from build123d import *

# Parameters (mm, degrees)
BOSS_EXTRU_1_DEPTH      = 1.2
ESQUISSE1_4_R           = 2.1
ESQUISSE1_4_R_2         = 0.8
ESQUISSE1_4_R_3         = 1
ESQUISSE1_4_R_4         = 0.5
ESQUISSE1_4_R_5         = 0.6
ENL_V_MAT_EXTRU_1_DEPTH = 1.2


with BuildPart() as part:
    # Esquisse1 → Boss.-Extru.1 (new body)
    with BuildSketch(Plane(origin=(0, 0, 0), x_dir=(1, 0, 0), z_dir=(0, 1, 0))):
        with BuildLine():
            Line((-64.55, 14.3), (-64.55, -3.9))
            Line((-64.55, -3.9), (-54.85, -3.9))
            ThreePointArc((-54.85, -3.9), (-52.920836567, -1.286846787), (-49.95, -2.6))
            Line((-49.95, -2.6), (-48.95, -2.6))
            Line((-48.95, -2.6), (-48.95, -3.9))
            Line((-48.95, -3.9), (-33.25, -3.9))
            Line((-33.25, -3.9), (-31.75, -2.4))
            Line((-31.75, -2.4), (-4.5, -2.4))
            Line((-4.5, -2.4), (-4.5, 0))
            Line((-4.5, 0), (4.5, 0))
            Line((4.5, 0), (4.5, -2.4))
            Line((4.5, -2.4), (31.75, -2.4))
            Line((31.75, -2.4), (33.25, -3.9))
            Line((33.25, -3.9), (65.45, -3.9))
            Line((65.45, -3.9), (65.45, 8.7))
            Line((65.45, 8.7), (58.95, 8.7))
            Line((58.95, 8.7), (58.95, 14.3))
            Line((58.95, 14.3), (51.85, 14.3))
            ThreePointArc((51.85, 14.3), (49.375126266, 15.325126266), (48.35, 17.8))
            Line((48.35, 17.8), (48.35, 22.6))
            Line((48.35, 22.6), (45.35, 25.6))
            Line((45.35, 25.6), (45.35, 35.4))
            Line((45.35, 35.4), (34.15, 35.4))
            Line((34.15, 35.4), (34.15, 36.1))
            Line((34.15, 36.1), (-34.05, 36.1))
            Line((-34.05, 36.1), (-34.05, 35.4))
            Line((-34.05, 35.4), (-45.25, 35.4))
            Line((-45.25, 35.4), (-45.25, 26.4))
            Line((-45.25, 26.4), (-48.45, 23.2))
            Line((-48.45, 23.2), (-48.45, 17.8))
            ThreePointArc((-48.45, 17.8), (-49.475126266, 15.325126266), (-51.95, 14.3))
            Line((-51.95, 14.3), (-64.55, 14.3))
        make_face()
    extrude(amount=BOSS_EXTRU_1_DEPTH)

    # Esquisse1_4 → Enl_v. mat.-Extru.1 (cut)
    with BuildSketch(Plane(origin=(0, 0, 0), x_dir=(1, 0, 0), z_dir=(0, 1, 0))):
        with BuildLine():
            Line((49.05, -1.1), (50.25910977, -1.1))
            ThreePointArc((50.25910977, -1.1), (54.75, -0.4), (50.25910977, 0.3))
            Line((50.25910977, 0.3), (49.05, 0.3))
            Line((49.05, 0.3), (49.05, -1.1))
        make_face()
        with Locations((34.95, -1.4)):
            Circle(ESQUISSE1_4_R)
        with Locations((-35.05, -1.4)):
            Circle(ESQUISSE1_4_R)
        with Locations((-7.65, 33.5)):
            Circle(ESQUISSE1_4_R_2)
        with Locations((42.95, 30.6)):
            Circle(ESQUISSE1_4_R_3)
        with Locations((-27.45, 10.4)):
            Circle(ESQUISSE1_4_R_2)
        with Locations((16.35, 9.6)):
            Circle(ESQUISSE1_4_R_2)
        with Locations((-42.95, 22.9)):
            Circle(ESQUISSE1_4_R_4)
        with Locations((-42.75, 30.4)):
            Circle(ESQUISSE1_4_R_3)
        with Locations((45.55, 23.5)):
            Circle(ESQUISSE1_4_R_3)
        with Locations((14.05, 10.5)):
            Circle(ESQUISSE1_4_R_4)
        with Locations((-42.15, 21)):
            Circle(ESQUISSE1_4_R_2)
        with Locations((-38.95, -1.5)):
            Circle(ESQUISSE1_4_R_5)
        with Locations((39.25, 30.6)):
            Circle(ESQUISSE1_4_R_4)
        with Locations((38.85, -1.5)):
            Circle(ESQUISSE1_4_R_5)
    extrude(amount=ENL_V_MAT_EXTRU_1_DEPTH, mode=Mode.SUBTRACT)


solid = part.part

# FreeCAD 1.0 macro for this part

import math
import FreeCAD as App
import Part
import Sketcher
Q = App.Units.Quantity

doc = App.newDocument("Part")
body = doc.addObject("PartDesign::Body", "Body")

sketch1 = body.newObject("Sketcher::SketchObject", "Sketch")
sketch1.AttachmentSupport = (doc.getObject("XZ_Plane"), [""])
sketch1.MapMode = "FlatFace"
sketch1.addGeometry(Part.LineSegment(App.Vector(-64.5, -14.3, 0), App.Vector(-64.5, 3.9, 0)), False)
sketch1.addGeometry(Part.LineSegment(App.Vector(-64.5, 3.9, 0), App.Vector(-54.9, 3.9, 0)), False)
sketch1.addGeometry(Part.ArcOfCircle(Part.Circle(App.Vector(-52.3, 3.8, 0), App.Vector(0, 0, 1), 2.6), math.radians(178), math.radians(333)), False)
sketch1.addGeometry(Part.LineSegment(App.Vector(-50, 2.6, 0), App.Vector(-49, 2.6, 0)), False)
sketch1.addGeometry(Part.LineSegment(App.Vector(-49, 2.6, 0), App.Vector(-49, 3.9, 0)), False)
sketch1.addGeometry(Part.LineSegment(App.Vector(-49, 3.9, 0), App.Vector(-33.2, 3.9, 0)), False)
sketch1.addGeometry(Part.LineSegment(App.Vector(-33.2, 3.9, 0), App.Vector(-31.8, 2.4, 0)), False)
sketch1.addGeometry(Part.LineSegment(App.Vector(-31.8, 2.4, 0), App.Vector(-4.5, 2.4, 0)), False)
sketch1.addGeometry(Part.LineSegment(App.Vector(-4.5, 2.4, 0), App.Vector(-4.5, 0, 0)), False)
sketch1.addGeometry(Part.LineSegment(App.Vector(-4.5, 0, 0), App.Vector(4.5, 0, 0)), False)
sketch1.addGeometry(Part.LineSegment(App.Vector(4.5, 0, 0), App.Vector(4.5, 2.4, 0)), False)
sketch1.addGeometry(Part.LineSegment(App.Vector(4.5, 2.4, 0), App.Vector(31.8, 2.4, 0)), False)
sketch1.addGeometry(Part.LineSegment(App.Vector(31.8, 2.4, 0), App.Vector(33.2, 3.9, 0)), False)
sketch1.addGeometry(Part.LineSegment(App.Vector(33.2, 3.9, 0), App.Vector(65.5, 3.9, 0)), False)
sketch1.addGeometry(Part.LineSegment(App.Vector(65.5, 3.9, 0), App.Vector(65.5, -8.7, 0)), False)
sketch1.addGeometry(Part.LineSegment(App.Vector(65.5, -8.7, 0), App.Vector(59, -8.7, 0)), False)
sketch1.addGeometry(Part.LineSegment(App.Vector(59, -8.7, 0), App.Vector(59, -14.3, 0)), False)
sketch1.addGeometry(Part.LineSegment(App.Vector(59, -14.3, 0), App.Vector(51.9, -14.3, 0)), False)
sketch1.addGeometry(Part.ArcOfCircle(Part.Circle(App.Vector(51.9, -17.8, 0), App.Vector(0, 0, 1), 3.5), math.radians(90), math.radians(180)), False)
sketch1.addGeometry(Part.LineSegment(App.Vector(48.4, -17.8, 0), App.Vector(48.4, -22.6, 0)), False)
sketch1.addGeometry(Part.LineSegment(App.Vector(48.4, -22.6, 0), App.Vector(45.4, -25.6, 0)), False)
sketch1.addGeometry(Part.LineSegment(App.Vector(45.4, -25.6, 0), App.Vector(45.4, -35.4, 0)), False)
sketch1.addGeometry(Part.LineSegment(App.Vector(45.4, -35.4, 0), App.Vector(34.1, -35.4, 0)), False)
sketch1.addGeometry(Part.LineSegment(App.Vector(34.1, -35.4, 0), App.Vector(34.1, -36.1, 0)), False)
sketch1.addGeometry(Part.LineSegment(App.Vector(34.1, -36.1, 0), App.Vector(-34, -36.1, 0)), False)
sketch1.addGeometry(Part.LineSegment(App.Vector(-34, -36.1, 0), App.Vector(-34, -35.4, 0)), False)
sketch1.addGeometry(Part.LineSegment(App.Vector(-34, -35.4, 0), App.Vector(-45.2, -35.4, 0)), False)
sketch1.addGeometry(Part.LineSegment(App.Vector(-45.2, -35.4, 0), App.Vector(-45.2, -26.4, 0)), False)
sketch1.addGeometry(Part.LineSegment(App.Vector(-45.2, -26.4, 0), App.Vector(-48.5, -23.2, 0)), False)
sketch1.addGeometry(Part.LineSegment(App.Vector(-48.5, -23.2, 0), App.Vector(-48.5, -17.8, 0)), False)
sketch1.addGeometry(Part.ArcOfCircle(Part.Circle(App.Vector(-52, -17.8, 0), App.Vector(0, 0, 1), 3.5), math.radians(0), math.radians(90)), False)
sketch1.addGeometry(Part.LineSegment(App.Vector(-52, -14.3, 0), App.Vector(-64.5, -14.3, 0)), False)
sketch1.addConstraint(Sketcher.Constraint("Coincident", 0, 2, 1, 1))
sketch1.addConstraint(Sketcher.Constraint("Coincident", 1, 2, 2, 1))
sketch1.addConstraint(Sketcher.Constraint("Coincident", 2, 2, 3, 1))
sketch1.addConstraint(Sketcher.Constraint("Coincident", 3, 2, 4, 1))
sketch1.addConstraint(Sketcher.Constraint("Coincident", 4, 2, 5, 1))
sketch1.addConstraint(Sketcher.Constraint("Coincident", 5, 2, 6, 1))
sketch1.addConstraint(Sketcher.Constraint("Coincident", 6, 2, 7, 1))
sketch1.addConstraint(Sketcher.Constraint("Coincident", 7, 2, 8, 1))
sketch1.addConstraint(Sketcher.Constraint("Coincident", 8, 2, 9, 1))
sketch1.addConstraint(Sketcher.Constraint("Coincident", 9, 2, 10, 1))
sketch1.addConstraint(Sketcher.Constraint("Coincident", 10, 2, 11, 1))
sketch1.addConstraint(Sketcher.Constraint("Coincident", 11, 2, 12, 1))
sketch1.addConstraint(Sketcher.Constraint("Coincident", 12, 2, 13, 1))
sketch1.addConstraint(Sketcher.Constraint("Coincident", 13, 2, 14, 1))
sketch1.addConstraint(Sketcher.Constraint("Coincident", 14, 2, 15, 1))
sketch1.addConstraint(Sketcher.Constraint("Coincident", 15, 2, 16, 1))
sketch1.addConstraint(Sketcher.Constraint("Coincident", 16, 2, 17, 1))
sketch1.addConstraint(Sketcher.Constraint("Tangent", 17, 2, 18, 1))
sketch1.addConstraint(Sketcher.Constraint("Tangent", 18, 2, 19, 1))
sketch1.addConstraint(Sketcher.Constraint("Coincident", 19, 2, 20, 1))
sketch1.addConstraint(Sketcher.Constraint("Coincident", 20, 2, 21, 1))
sketch1.addConstraint(Sketcher.Constraint("Coincident", 21, 2, 22, 1))
sketch1.addConstraint(Sketcher.Constraint("Coincident", 22, 2, 23, 1))
sketch1.addConstraint(Sketcher.Constraint("Coincident", 23, 2, 24, 1))
sketch1.addConstraint(Sketcher.Constraint("Coincident", 24, 2, 25, 1))
sketch1.addConstraint(Sketcher.Constraint("Coincident", 25, 2, 26, 1))
sketch1.addConstraint(Sketcher.Constraint("Coincident", 26, 2, 27, 1))
sketch1.addConstraint(Sketcher.Constraint("Coincident", 27, 2, 28, 1))
sketch1.addConstraint(Sketcher.Constraint("Coincident", 28, 2, 29, 1))
sketch1.addConstraint(Sketcher.Constraint("Tangent", 29, 2, 30, 1))
sketch1.addConstraint(Sketcher.Constraint("Tangent", 30, 2, 31, 1))
sketch1.addConstraint(Sketcher.Constraint("Coincident", 31, 2, 0, 1))
sketch1.addConstraint(Sketcher.Constraint("Vertical", 0))
sketch1.addConstraint(Sketcher.Constraint("Horizontal", 1))
sketch1.addConstraint(Sketcher.Constraint("Horizontal", 3))
sketch1.addConstraint(Sketcher.Constraint("Vertical", 4))
sketch1.addConstraint(Sketcher.Constraint("Horizontal", 5))
sketch1.addConstraint(Sketcher.Constraint("Horizontal", 7))
sketch1.addConstraint(Sketcher.Constraint("Vertical", 8))
sketch1.addConstraint(Sketcher.Constraint("Horizontal", 9))
sketch1.addConstraint(Sketcher.Constraint("Vertical", 10))
sketch1.addConstraint(Sketcher.Constraint("Horizontal", 11))
sketch1.addConstraint(Sketcher.Constraint("Horizontal", 13))
sketch1.addConstraint(Sketcher.Constraint("Vertical", 14))
sketch1.addConstraint(Sketcher.Constraint("Horizontal", 15))
sketch1.addConstraint(Sketcher.Constraint("Vertical", 16))
sketch1.addConstraint(Sketcher.Constraint("Horizontal", 17))
sketch1.addConstraint(Sketcher.Constraint("Vertical", 19))
sketch1.addConstraint(Sketcher.Constraint("Vertical", 21))
sketch1.addConstraint(Sketcher.Constraint("Horizontal", 22))
sketch1.addConstraint(Sketcher.Constraint("Vertical", 23))
sketch1.addConstraint(Sketcher.Constraint("Horizontal", 24))
sketch1.addConstraint(Sketcher.Constraint("Vertical", 25))
sketch1.addConstraint(Sketcher.Constraint("Horizontal", 26))
sketch1.addConstraint(Sketcher.Constraint("Vertical", 27))
sketch1.addConstraint(Sketcher.Constraint("Vertical", 29))
sketch1.addConstraint(Sketcher.Constraint("Horizontal", 31))
sketch1.addConstraint(Sketcher.Constraint("Equal", 18, 30))
sketch1.addConstraint(Sketcher.Constraint("Symmetric", 8, 2, 9, 2, -1, 1))
sketch1.addConstraint(Sketcher.Constraint("Symmetric", 6, 2, 11, 2, -2))
sketch1.addConstraint(Sketcher.Constraint("Symmetric", 5, 2, 12, 2, -2))
sketch1.addConstraint(Sketcher.Constraint("Perpendicular", 6, 12))
sketch1.addConstraint(Sketcher.Constraint("Parallel", 12, 20))
sketch1.addConstraint(Sketcher.Constraint("Perpendicular", 20, 28))
sketch1.addConstraint(Sketcher.Constraint("Horizontal", 18, 3, 30, 3))
sketch1.addConstraint(Sketcher.Constraint("Horizontal", 1, 2, 4, 2))
sketch1.addConstraint(Sketcher.Constraint("Horizontal", 22, 2, 25, 2))
sketch1.addConstraint(Sketcher.Constraint("Equal", 22, 26))
sketch1.addConstraint(Sketcher.Constraint("Equal", 31, 14))
sketch1.addConstraint(Sketcher.Constraint("Equal", 9, 27))
sketch1.addConstraint(Sketcher.Constraint("Radius", 18, Q("3.5 mm")))
sketch1.addConstraint(Sketcher.Constraint("DistanceX", 3, 1, 3, 2, Q("1 mm")))
sketch1.addConstraint(Sketcher.Constraint("DistanceX", 9, 1, 9, 2, Q("9 mm")))
sketch1.addConstraint(Sketcher.Constraint("DistanceX", 1, 1, 1, 2, Q("9.7 mm")))
sketch1.addConstraint(Sketcher.Constraint("DistanceX", 5, 1, 5, 2, Q("15.7 mm")))
sketch1.addConstraint(Sketcher.Constraint("DistanceX", 13, 1, 13, 2, Q("32.2 mm")))
sketch1.addConstraint(Sketcher.Constraint("DistanceX", 15, 2, 15, 1, Q("6.5 mm")))
sketch1.addConstraint(Sketcher.Constraint("DistanceX", 17, 2, 17, 1, Q("7.1 mm")))
sketch1.addConstraint(Sketcher.Constraint("DistanceX", 22, 2, 22, 1, Q("11.2 mm")))
sketch1.addConstraint(Sketcher.Constraint("DistanceX", 24, 2, 24, 1, Q("68.2 mm")))
sketch1.addConstraint(Sketcher.Constraint("DistanceX", 31, 2, 31, 1, Q("12.6 mm")))
sketch1.addConstraint(Sketcher.Constraint("DistanceY", 0, 1, 0, 2, Q("18.2 mm")))
sketch1.addConstraint(Sketcher.Constraint("DistanceY", 4, 1, 4, 2, Q("1.3 mm")))
sketch1.addConstraint(Sketcher.Constraint("DistanceY", 8, 2, 8, 1, Q("2.4 mm")))
sketch1.addConstraint(Sketcher.Constraint("DistanceY", 19, 2, 19, 1, Q("4.8 mm")))
sketch1.addConstraint(Sketcher.Constraint("DistanceY", 21, 2, 21, 1, Q("9.8 mm")))
sketch1.addConstraint(Sketcher.Constraint("DistanceY", 23, 2, 23, 1, Q("0.7 mm")))
sketch1.addConstraint(Sketcher.Constraint("DistanceY", 29, 1, 29, 2, Q("5.4 mm")))
sketch1.addConstraint(Sketcher.Constraint("DistanceX", 30, 3, 2, 2, Q("2 mm")))
sketch1.addConstraint(Sketcher.Constraint("DistanceX", 20, 2, 19, 2, Q("3 mm")))
sketch1.addConstraint(Sketcher.Constraint("DistanceX", 7, 1, 7, 2, Q("27.25 mm")))
sketch1.addConstraint(Sketcher.Constraint("Radius", 2, Q("2.597214 mm")))
pad1 = body.newObject("PartDesign::Pad", "Pad")
pad1.Profile = sketch1
pad1.Length = 1.2
pad1.Reversed = True

sketch2 = body.newObject("Sketcher::SketchObject", "Sketch001")
sketch2.AttachmentSupport = (doc.getObject("XZ_Plane"), [""])
sketch2.MapMode = "FlatFace"
sketch2.addGeometry(Part.LineSegment(App.Vector(49, 1.1, 0), App.Vector(50.3, 1.1, 0)), False)
sketch2.addGeometry(Part.ArcOfCircle(Part.Circle(App.Vector(52.5, 0.4, 0), App.Vector(0, 0, 1), 2.3), math.radians(-162), math.radians(162)), False)
sketch2.addGeometry(Part.LineSegment(App.Vector(50.3, -0.3, 0), App.Vector(49, -0.3, 0)), False)
sketch2.addGeometry(Part.LineSegment(App.Vector(49, -0.3, 0), App.Vector(49, 1.1, 0)), False)
sketch2.addGeometry(Part.Circle(App.Vector(35, 1.4, 0), App.Vector(0, 0, 1), 2.1), False)
sketch2.addGeometry(Part.Circle(App.Vector(-35, 1.4, 0), App.Vector(0, 0, 1), 2.1), False)
sketch2.addGeometry(Part.Circle(App.Vector(-7.7, -33.5, 0), App.Vector(0, 0, 1), 0.8), False)
sketch2.addGeometry(Part.Circle(App.Vector(43, -30.6, 0), App.Vector(0, 0, 1), 1), False)
sketch2.addGeometry(Part.Circle(App.Vector(-27.4, -10.4, 0), App.Vector(0, 0, 1), 0.8), False)
sketch2.addGeometry(Part.Circle(App.Vector(16.4, -9.6, 0), App.Vector(0, 0, 1), 0.8), False)
sketch2.addGeometry(Part.Circle(App.Vector(-43, -22.9, 0), App.Vector(0, 0, 1), 0.5), False)
sketch2.addGeometry(Part.Circle(App.Vector(-42.8, -30.4, 0), App.Vector(0, 0, 1), 1), False)
sketch2.addGeometry(Part.Circle(App.Vector(45.5, -23.5, 0), App.Vector(0, 0, 1), 1), False)
sketch2.addGeometry(Part.Circle(App.Vector(14.1, -10.5, 0), App.Vector(0, 0, 1), 0.5), False)
sketch2.addGeometry(Part.Circle(App.Vector(-42.1, -21, 0), App.Vector(0, 0, 1), 0.8), False)
sketch2.addGeometry(Part.Circle(App.Vector(-39, 1.5, 0), App.Vector(0, 0, 1), 0.6), False)
sketch2.addGeometry(Part.Circle(App.Vector(39.2, -30.6, 0), App.Vector(0, 0, 1), 0.5), False)
sketch2.addGeometry(Part.Circle(App.Vector(38.9, 1.5, 0), App.Vector(0, 0, 1), 0.6), False)
sketch2.addConstraint(Sketcher.Constraint("Coincident", 0, 2, 1, 2))
sketch2.addConstraint(Sketcher.Constraint("Coincident", 1, 1, 2, 1))
sketch2.addConstraint(Sketcher.Constraint("Coincident", 2, 2, 3, 1))
sketch2.addConstraint(Sketcher.Constraint("Coincident", 3, 2, 0, 1))
sketch2.addConstraint(Sketcher.Constraint("Horizontal", 0))
sketch2.addConstraint(Sketcher.Constraint("Horizontal", 2))
sketch2.addConstraint(Sketcher.Constraint("Vertical", 3))
sketch2.addConstraint(Sketcher.Constraint("Equal", 4, 5))
sketch2.addConstraint(Sketcher.Constraint("Equal", 6, 8))
sketch2.addConstraint(Sketcher.Constraint("Equal", 8, 9))
sketch2.addConstraint(Sketcher.Constraint("Equal", 7, 11))
sketch2.addConstraint(Sketcher.Constraint("Equal", 11, 12))
sketch2.addConstraint(Sketcher.Constraint("Equal", 10, 13))
sketch2.addConstraint(Sketcher.Constraint("Equal", 9, 14))
sketch2.addConstraint(Sketcher.Constraint("Equal", 13, 16))
sketch2.addConstraint(Sketcher.Constraint("Equal", 15, 17))
sketch2.addConstraint(Sketcher.Constraint("Horizontal", 4, 3, 5, 3))
sketch2.addConstraint(Sketcher.Constraint("Horizontal", 7, 3, 16, 3))
sketch2.addConstraint(Sketcher.Constraint("Horizontal", 15, 3, 17, 3))
sketch2.addConstraint(Sketcher.Constraint("Vertical", 0, 2, 1, 1))
sketch2.addConstraint(Sketcher.Constraint("Diameter", 7, Q("2 mm")))
sketch2.addConstraint(Sketcher.Constraint("Diameter", 10, Q("1 mm")))
sketch2.addConstraint(Sketcher.Constraint("Diameter", 4, Q("4.2 mm")))
sketch2.addConstraint(Sketcher.Constraint("Diameter", 6, Q("1.6 mm")))
sketch2.addConstraint(Sketcher.Constraint("Diameter", 15, Q("1.2 mm")))
sketch2.addConstraint(Sketcher.Constraint("Radius", 1, Q("2.3 mm")))
sketch2.addConstraint(Sketcher.Constraint("DistanceY", 3, 1, 3, 2, Q("1.4 mm")))
sketch2.addConstraint(Sketcher.Constraint("DistanceY", 14, 3, -1, 1, Q("21 mm")))
sketch2.addConstraint(Sketcher.Constraint("DistanceY", 1, 3, 4, 3, Q("1 mm")))
sketch2.addConstraint(Sketcher.Constraint("DistanceX", 5, 3, 4, 3, Q("70 mm")))
sketch2.addConstraint(Sketcher.Constraint("DistanceY", 7, 3, 1, 3, Q("31 mm")))
sketch2.addConstraint(Sketcher.Constraint("DistanceX", 4, 3, 7, 3, Q("8 mm")))
sketch2.addConstraint(Sketcher.Constraint("DistanceY", 9, 3, 4, 3, Q("11 mm")))
sketch2.addConstraint(Sketcher.Constraint("DistanceX", 6, 3, 9, 3, Q("24 mm")))
sketch2.addConstraint(Sketcher.Constraint("DistanceY", 11, 3, 8, 3, Q("20 mm")))
sketch2.addConstraint(Sketcher.Constraint("DistanceY", 6, 3, 12, 3, Q("10 mm")))
sketch2.addConstraint(Sketcher.Constraint("DistanceY", 6, 3, 13, 3, Q("23 mm")))
sketch2.addConstraint(Sketcher.Constraint("DistanceX", 10, 3, 15, 3, Q("4 mm")))
sketch2.addConstraint(Sketcher.Constraint("DistanceY", 12, 3, 17, 3, Q("25 mm")))
sketch2.addConstraint(Sketcher.Constraint("DistanceY", -1, 1, 1, 3, Q("0.4 mm")))
sketch2.addConstraint(Sketcher.Constraint("DistanceY", 6, 3, -1, 1, Q("33.5 mm")))
sketch2.addConstraint(Sketcher.Constraint("DistanceY", 8, 3, -1, 1, Q("10.4 mm")))
sketch2.addConstraint(Sketcher.Constraint("DistanceY", 10, 3, -1, 1, Q("22.9 mm")))
sketch2.addConstraint(Sketcher.Constraint("DistanceX", 4, 3, 1, 3, Q("17.5 mm")))
sketch2.addConstraint(Sketcher.Constraint("DistanceX", 5, 3, 6, 3, Q("27.4 mm")))
sketch2.addConstraint(Sketcher.Constraint("DistanceX", 5, 3, 8, 3, Q("7.6 mm")))
sketch2.addConstraint(Sketcher.Constraint("DistanceX", 10, 3, 8, 3, Q("15.5 mm")))
sketch2.addConstraint(Sketcher.Constraint("DistanceX", 10, 3, 11, 3, Q("0.2 mm")))
sketch2.addConstraint(Sketcher.Constraint("DistanceX", 7, 3, 12, 3, Q("2.6 mm")))
sketch2.addConstraint(Sketcher.Constraint("DistanceX", 13, 3, 9, 3, Q("2.3 mm")))
sketch2.addConstraint(Sketcher.Constraint("DistanceX", 10, 3, 14, 3, Q("0.8 mm")))
sketch2.addConstraint(Sketcher.Constraint("DistanceX", 16, 3, 7, 3, Q("3.7 mm")))
sketch2.addConstraint(Sketcher.Constraint("DistanceX", 4, 3, 17, 3, Q("3.9 mm")))
sketch2.addConstraint(Sketcher.Constraint("DistanceX", 2, 2, 1, 3, Q("3.4 mm")))
sketch2.addConstraint(Sketcher.Constraint("DistanceX", -1, 1, 1, 3, Q("52.45 mm")))
pocket1 = body.newObject("PartDesign::Pocket", "Pocket")
pocket1.Profile = sketch2
pocket1.Length = 1.2

doc.recompute()
